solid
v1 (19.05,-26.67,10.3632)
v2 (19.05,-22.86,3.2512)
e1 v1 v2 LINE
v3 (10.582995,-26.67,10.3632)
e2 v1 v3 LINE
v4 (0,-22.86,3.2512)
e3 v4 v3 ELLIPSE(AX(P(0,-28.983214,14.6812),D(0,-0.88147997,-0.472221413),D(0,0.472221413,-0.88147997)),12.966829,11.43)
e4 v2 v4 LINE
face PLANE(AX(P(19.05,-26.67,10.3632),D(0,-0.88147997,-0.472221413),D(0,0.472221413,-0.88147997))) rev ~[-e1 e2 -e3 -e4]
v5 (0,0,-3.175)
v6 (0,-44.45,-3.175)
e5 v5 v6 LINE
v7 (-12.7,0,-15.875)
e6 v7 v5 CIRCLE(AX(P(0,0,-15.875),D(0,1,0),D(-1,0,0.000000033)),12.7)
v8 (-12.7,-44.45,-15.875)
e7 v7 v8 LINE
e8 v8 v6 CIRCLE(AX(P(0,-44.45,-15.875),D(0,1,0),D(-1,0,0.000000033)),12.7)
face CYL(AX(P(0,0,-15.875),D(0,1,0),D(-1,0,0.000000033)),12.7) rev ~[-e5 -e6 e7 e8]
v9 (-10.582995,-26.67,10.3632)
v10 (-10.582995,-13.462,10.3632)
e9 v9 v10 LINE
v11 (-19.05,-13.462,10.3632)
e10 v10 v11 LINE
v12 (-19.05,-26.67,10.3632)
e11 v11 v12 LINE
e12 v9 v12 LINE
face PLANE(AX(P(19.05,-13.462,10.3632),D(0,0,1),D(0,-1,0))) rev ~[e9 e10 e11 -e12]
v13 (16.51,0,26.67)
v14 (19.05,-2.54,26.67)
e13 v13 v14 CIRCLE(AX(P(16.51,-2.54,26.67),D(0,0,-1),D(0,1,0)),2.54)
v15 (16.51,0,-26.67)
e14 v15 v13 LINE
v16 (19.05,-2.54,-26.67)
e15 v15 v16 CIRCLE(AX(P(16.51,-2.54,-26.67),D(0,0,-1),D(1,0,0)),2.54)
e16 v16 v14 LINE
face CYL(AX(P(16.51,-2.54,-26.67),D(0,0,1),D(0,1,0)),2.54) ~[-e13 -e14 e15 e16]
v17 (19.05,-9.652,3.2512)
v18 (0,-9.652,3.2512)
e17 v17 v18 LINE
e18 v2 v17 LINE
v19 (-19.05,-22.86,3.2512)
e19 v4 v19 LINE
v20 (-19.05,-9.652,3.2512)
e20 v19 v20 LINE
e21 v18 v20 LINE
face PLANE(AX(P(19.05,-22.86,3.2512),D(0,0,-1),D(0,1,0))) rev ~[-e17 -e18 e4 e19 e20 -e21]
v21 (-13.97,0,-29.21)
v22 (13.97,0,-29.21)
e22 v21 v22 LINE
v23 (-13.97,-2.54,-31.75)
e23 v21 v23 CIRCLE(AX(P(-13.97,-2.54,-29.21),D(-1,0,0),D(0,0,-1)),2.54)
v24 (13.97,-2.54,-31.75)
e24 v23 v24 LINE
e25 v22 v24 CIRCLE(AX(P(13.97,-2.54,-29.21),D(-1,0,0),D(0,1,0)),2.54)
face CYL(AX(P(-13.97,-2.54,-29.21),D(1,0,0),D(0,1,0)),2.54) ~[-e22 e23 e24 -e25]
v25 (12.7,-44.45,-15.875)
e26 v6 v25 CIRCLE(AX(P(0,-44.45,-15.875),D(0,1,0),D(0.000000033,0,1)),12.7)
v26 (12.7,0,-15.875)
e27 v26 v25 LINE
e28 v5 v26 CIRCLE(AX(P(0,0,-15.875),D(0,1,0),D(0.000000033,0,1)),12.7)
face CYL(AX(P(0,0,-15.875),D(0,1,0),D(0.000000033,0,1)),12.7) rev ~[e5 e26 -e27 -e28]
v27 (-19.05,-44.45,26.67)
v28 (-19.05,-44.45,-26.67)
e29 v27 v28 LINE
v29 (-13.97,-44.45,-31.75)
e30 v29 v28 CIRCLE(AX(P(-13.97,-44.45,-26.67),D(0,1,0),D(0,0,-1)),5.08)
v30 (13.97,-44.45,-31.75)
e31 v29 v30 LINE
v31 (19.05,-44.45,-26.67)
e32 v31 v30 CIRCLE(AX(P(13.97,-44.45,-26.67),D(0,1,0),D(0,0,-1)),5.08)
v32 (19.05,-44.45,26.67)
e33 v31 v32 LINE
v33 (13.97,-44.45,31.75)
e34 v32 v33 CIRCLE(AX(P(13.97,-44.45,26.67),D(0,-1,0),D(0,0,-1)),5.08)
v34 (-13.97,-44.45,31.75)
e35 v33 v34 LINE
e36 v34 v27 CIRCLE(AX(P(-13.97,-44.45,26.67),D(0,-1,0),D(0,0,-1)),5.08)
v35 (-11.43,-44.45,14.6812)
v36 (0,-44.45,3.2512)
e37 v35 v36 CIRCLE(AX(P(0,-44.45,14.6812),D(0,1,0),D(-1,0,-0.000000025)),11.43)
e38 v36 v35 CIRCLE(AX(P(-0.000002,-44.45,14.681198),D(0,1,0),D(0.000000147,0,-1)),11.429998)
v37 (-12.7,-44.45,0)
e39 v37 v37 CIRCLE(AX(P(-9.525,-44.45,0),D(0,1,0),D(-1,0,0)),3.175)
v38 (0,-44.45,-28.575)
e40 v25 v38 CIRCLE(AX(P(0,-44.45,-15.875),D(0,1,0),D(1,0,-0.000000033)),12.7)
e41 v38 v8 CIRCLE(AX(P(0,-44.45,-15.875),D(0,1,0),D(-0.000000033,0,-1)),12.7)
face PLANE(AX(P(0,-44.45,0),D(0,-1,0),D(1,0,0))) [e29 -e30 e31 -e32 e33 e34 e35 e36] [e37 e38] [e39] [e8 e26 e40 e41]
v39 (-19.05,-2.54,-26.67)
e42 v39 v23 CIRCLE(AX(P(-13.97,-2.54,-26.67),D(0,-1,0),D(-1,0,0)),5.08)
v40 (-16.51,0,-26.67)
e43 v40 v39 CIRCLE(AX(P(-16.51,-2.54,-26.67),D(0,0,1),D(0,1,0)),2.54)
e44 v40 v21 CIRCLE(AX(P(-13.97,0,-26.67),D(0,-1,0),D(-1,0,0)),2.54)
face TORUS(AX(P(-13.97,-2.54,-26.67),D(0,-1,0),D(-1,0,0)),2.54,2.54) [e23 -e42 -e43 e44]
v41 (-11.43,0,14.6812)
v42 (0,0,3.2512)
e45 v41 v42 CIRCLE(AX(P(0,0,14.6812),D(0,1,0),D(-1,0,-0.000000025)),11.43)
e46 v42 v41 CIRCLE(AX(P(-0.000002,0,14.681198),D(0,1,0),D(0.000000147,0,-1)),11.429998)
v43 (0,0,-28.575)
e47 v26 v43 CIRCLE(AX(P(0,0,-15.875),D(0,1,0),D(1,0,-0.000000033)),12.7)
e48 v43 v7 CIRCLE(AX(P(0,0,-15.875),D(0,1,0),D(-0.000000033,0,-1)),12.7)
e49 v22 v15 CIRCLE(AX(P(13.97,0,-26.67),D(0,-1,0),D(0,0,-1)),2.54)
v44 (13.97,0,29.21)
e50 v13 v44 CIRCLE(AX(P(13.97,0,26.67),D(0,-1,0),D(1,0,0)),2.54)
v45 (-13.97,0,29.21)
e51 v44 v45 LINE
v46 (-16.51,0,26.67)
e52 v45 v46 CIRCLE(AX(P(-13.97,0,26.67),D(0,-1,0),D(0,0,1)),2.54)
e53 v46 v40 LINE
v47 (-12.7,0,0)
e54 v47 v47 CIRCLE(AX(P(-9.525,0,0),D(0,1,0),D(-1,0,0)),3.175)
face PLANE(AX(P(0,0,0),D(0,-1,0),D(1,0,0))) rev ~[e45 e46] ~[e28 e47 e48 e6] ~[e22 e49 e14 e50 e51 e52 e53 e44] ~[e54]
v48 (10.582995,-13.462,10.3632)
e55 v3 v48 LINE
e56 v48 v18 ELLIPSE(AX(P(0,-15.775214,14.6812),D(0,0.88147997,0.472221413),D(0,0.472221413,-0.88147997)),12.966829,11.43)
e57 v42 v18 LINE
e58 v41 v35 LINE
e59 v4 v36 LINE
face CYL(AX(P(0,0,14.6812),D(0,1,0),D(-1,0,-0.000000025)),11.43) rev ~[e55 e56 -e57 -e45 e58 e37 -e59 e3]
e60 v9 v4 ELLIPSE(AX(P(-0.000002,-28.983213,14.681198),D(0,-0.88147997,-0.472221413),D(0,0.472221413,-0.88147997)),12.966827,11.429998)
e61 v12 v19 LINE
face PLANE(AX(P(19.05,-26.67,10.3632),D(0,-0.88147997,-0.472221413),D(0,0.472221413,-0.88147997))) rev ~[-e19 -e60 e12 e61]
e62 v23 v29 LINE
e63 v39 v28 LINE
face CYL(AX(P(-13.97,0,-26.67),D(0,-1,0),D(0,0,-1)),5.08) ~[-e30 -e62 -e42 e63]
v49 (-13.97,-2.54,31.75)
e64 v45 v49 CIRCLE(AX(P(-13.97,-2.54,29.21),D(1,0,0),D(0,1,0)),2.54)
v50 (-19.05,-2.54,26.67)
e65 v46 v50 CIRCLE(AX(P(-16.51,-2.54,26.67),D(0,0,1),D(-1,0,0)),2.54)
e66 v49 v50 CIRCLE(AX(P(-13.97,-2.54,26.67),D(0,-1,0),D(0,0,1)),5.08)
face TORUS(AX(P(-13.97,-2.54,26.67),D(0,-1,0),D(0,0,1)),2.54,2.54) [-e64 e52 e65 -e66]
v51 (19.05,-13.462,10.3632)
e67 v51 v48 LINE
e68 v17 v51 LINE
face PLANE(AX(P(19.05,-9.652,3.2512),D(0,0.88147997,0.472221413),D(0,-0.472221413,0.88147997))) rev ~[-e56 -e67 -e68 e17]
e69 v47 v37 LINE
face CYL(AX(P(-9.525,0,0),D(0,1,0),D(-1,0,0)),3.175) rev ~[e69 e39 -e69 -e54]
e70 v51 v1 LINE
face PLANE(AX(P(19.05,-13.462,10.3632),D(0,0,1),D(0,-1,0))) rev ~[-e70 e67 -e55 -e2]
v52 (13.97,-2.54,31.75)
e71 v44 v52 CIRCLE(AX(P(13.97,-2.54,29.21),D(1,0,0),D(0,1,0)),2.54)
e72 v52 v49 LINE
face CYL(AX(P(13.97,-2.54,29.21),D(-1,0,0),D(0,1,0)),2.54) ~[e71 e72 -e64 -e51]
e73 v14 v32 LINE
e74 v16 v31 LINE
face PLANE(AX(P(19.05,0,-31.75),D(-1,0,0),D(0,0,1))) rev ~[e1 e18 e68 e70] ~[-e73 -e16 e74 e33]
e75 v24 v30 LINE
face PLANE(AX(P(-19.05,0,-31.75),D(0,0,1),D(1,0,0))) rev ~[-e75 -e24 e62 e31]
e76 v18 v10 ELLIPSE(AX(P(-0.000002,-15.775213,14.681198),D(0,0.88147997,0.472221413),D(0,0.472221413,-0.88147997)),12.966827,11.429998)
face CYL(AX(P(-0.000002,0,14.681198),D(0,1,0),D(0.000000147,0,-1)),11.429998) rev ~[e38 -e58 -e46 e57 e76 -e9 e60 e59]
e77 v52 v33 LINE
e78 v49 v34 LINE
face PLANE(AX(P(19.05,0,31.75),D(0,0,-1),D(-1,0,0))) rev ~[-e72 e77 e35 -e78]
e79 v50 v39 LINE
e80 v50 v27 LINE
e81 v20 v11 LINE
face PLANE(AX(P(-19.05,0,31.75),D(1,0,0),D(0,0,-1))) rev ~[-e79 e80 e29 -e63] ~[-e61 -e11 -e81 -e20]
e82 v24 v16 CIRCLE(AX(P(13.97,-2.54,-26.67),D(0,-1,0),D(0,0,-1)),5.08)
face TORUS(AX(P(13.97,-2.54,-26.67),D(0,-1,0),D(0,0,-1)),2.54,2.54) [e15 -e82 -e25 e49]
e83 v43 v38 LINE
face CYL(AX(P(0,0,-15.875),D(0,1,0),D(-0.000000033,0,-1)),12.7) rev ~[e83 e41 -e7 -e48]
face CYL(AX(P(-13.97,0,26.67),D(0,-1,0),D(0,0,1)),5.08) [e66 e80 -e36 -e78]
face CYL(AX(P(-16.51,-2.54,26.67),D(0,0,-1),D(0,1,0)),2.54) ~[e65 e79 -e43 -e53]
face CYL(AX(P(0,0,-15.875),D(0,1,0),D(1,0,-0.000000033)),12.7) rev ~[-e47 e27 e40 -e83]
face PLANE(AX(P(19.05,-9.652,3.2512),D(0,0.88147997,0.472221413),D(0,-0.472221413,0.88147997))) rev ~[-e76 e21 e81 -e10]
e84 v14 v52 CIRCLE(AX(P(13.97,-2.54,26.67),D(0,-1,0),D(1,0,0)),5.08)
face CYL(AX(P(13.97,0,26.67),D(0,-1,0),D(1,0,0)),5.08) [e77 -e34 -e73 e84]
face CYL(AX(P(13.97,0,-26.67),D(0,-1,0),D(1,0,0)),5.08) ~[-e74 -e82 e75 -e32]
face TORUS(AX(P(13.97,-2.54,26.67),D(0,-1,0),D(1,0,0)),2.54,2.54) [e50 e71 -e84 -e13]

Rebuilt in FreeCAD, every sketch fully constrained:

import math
import FreeCAD as App
import Part
import Sketcher
Q = App.Units.Quantity


def edges_at(feature, points):
    """Names of the edges that pass closest to the given points."""
    edges = feature.Shape.Edges
    near = lambda p: min(range(len(edges)), key=lambda i: edges[i].distToShape(Part.Vertex(*p))[0])
    return sorted({f"Edge{near(p) + 1}" for p in points})


def add_polygon(sketch, points):
    """Adds a closed chain of lines whose ends are joined by coincident constraints."""
    first, n = sketch.GeometryCount, len(points)
    for a, b in zip(points, points[1:] + points[:1]):
        sketch.addGeometry(Part.LineSegment(App.Vector(*a, 0), App.Vector(*b, 0)), False)
    for i in range(n):
        sketch.addConstraint(Sketcher.Constraint("Coincident", first + i, 2, first + (i + 1) % n, 1))

doc = App.newDocument("Part")
body = doc.addObject("PartDesign::Body", "Body")

# Sketch on XZ plane
sketch1 = body.newObject("Sketcher::SketchObject", "Sketch")
sketch1.AttachmentSupport = (doc.getObject("XZ_Plane"), [""])
sketch1.MapMode = "FlatFace"
add_polygon(sketch1, [(19.1, -31.8), (19.1, 31.8), (-19.1, 31.8), (-19.1, -31.8)])  # lines 0-3
sketch1.addGeometry(Part.Circle(App.Vector(-9.5, 0, 0), App.Vector(0, 0, 1), 3.2), False)  # 4
sketch1.addConstraint([
    Sketcher.Constraint("Vertical", 0),
    Sketcher.Constraint("Horizontal", 1),
    Sketcher.Constraint("Vertical", 2),
    Sketcher.Constraint("Horizontal", 3),
    Sketcher.Constraint("Symmetric", 0, 2, 2, 2, -1, 1),
    Sketcher.Constraint("PointOnObject", 4, 3, -1),
    Sketcher.Constraint("Diameter", 4, Q("0.25 in")),
    Sketcher.Constraint("DistanceX", 1, 2, 1, 1, Q("1.5 in")),
    Sketcher.Constraint("DistanceY", 0, 1, 0, 2, Q("2.5 in")),
    Sketcher.Constraint("DistanceX", 4, 3, -1, 1, Q("0.375 in")),
])
pad1 = body.newObject("PartDesign::Pad", "Pad")
pad1.Profile = sketch1
pad1.Length = Q("1.75 in")

# Sketch on XZ plane
sketch2 = body.newObject("Sketcher::SketchObject", "Sketch001")
sketch2.AttachmentSupport = (doc.getObject("XZ_Plane"), [""])
sketch2.MapMode = "FlatFace"
sketch2.addGeometry([
    Part.ArcOfCircle(Part.Circle(App.Vector(0, -16, 0), App.Vector(0, 0, 1), 13), math.radians(-90), math.radians(0)),  # 0
    Part.ArcOfCircle(Part.Circle(App.Vector(0, -16, 0), App.Vector(0, 0, 1), 13), math.radians(-180), math.radians(-90)),  # 1
    Part.ArcOfCircle(Part.Circle(App.Vector(0, -16, 0), App.Vector(0, 0, 1), 13), math.radians(90), math.radians(180)),  # 2
    Part.ArcOfCircle(Part.Circle(App.Vector(0, -16, 0), App.Vector(0, 0, 1), 13), math.radians(0), math.radians(90)),  # 3
    Part.ArcOfCircle(Part.Circle(App.Vector(0, 15, 0), App.Vector(0, 0, 1), 11), math.radians(-90), math.radians(180)),  # 4
    Part.ArcOfCircle(Part.Circle(App.Vector(0, 15, 0), App.Vector(0, 0, 1), 11), math.radians(180), math.radians(270)),  # 5
], False)
sketch2.addConstraint([
    Sketcher.Constraint("Tangent", 0, 1, 1, 2),
    Sketcher.Constraint("Tangent", 1, 1, 2, 2),
    Sketcher.Constraint("Tangent", 2, 1, 3, 2),
    Sketcher.Constraint("Tangent", 3, 1, 0, 2),
    Sketcher.Constraint("Tangent", 4, 1, 5, 2),
    Sketcher.Constraint("Coincident", 5, 1, 4, 2),
    Sketcher.Constraint("Equal", 0, 1),
    Sketcher.Constraint("Symmetric", 1, 1, 3, 1, -2),
    Sketcher.Constraint("PointOnObject", 4, 3, -2),
    Sketcher.Constraint("PointOnObject", 0, 1, -2),
    Sketcher.Constraint("PointOnObject", 2, 1, -2),
    Sketcher.Constraint("PointOnObject", 4, 1, -2),
    Sketcher.Constraint("Horizontal", 3, 3, 1, 1),
    Sketcher.Constraint("Horizontal", 4, 3, 5, 1),
    Sketcher.Constraint("Radius", 0, Q("0.5 in")),
    Sketcher.Constraint("Radius", 4, Q("0.45 in")),
    Sketcher.Constraint("DistanceY", 0, 3, -1, 1, Q("0.625 in")),
    Sketcher.Constraint("DistanceY", -1, 1, 4, 3, Q("0.578 in")),
])
pocket1 = body.newObject("PartDesign::Pocket", "Pocket")
pocket1.Profile = sketch2
pocket1.Type = "ThroughAll"
pocket1.Reversed = True

# Sketch on YZ plane
sketch3 = body.newObject("Sketcher::SketchObject", "Sketch002")
sketch3.AttachmentSupport = (doc.getObject("YZ_Plane"), [""])
sketch3.MapMode = "FlatFace"
sketch3.AttachmentOffset = App.Placement(App.Vector(0, 0, 0.75 * 25.4), App.Rotation())
add_polygon(sketch3, [(-23, 3), (-10, 3), (-13, 10), (-27, 10)])  # lines 0-3
sketch3.addConstraint([
    Sketcher.Constraint("Horizontal", 0),
    Sketcher.Constraint("Horizontal", 2),
    Sketcher.Constraint("Parallel", 1, 3),
    Sketcher.Constraint("DistanceX", 0, 1, 0, 2, Q("0.52 in")),
    Sketcher.Constraint("DistanceX", 3, 2, -1, 1, Q("0.9 in")),
    Sketcher.Constraint("DistanceX", 1, 2, -1, 1, Q("0.53 in")),
    Sketcher.Constraint("DistanceY", 0, 2, 1, 2, Q("0.28 in")),
    Sketcher.Constraint("DistanceY", -1, 1, 0, 2, Q("0.128 in")),
])
pocket2 = body.newObject("PartDesign::Pocket", "Pocket001")
pocket2.Profile = sketch3
pocket2.Type = "ThroughAll"
doc.recompute()

fillet = body.newObject("PartDesign::Fillet", "Fillet")
fillet.Base = (pocket2, edges_at(pocket2, [(-19.05, -22.225, 31.75), (19.05, -22.225, 31.75)]))
fillet.Radius = Q("0.2 in")
doc.recompute()

fillet2 = body.newObject("PartDesign::Fillet", "Fillet001")
fillet2.Base = (fillet, edges_at(fillet, [(19.05, -22.225, -31.75), (-19.05, -22.225, -31.75)]))
fillet2.Radius = Q("0.2 in")
doc.recompute()

fillet3 = body.newObject("PartDesign::Fillet", "Fillet002")
fillet3.Base = (fillet2, edges_at(fillet2, [(0, 0, 31.75)]))
fillet3.Radius = Q("0.1 in")

doc.recompute()
